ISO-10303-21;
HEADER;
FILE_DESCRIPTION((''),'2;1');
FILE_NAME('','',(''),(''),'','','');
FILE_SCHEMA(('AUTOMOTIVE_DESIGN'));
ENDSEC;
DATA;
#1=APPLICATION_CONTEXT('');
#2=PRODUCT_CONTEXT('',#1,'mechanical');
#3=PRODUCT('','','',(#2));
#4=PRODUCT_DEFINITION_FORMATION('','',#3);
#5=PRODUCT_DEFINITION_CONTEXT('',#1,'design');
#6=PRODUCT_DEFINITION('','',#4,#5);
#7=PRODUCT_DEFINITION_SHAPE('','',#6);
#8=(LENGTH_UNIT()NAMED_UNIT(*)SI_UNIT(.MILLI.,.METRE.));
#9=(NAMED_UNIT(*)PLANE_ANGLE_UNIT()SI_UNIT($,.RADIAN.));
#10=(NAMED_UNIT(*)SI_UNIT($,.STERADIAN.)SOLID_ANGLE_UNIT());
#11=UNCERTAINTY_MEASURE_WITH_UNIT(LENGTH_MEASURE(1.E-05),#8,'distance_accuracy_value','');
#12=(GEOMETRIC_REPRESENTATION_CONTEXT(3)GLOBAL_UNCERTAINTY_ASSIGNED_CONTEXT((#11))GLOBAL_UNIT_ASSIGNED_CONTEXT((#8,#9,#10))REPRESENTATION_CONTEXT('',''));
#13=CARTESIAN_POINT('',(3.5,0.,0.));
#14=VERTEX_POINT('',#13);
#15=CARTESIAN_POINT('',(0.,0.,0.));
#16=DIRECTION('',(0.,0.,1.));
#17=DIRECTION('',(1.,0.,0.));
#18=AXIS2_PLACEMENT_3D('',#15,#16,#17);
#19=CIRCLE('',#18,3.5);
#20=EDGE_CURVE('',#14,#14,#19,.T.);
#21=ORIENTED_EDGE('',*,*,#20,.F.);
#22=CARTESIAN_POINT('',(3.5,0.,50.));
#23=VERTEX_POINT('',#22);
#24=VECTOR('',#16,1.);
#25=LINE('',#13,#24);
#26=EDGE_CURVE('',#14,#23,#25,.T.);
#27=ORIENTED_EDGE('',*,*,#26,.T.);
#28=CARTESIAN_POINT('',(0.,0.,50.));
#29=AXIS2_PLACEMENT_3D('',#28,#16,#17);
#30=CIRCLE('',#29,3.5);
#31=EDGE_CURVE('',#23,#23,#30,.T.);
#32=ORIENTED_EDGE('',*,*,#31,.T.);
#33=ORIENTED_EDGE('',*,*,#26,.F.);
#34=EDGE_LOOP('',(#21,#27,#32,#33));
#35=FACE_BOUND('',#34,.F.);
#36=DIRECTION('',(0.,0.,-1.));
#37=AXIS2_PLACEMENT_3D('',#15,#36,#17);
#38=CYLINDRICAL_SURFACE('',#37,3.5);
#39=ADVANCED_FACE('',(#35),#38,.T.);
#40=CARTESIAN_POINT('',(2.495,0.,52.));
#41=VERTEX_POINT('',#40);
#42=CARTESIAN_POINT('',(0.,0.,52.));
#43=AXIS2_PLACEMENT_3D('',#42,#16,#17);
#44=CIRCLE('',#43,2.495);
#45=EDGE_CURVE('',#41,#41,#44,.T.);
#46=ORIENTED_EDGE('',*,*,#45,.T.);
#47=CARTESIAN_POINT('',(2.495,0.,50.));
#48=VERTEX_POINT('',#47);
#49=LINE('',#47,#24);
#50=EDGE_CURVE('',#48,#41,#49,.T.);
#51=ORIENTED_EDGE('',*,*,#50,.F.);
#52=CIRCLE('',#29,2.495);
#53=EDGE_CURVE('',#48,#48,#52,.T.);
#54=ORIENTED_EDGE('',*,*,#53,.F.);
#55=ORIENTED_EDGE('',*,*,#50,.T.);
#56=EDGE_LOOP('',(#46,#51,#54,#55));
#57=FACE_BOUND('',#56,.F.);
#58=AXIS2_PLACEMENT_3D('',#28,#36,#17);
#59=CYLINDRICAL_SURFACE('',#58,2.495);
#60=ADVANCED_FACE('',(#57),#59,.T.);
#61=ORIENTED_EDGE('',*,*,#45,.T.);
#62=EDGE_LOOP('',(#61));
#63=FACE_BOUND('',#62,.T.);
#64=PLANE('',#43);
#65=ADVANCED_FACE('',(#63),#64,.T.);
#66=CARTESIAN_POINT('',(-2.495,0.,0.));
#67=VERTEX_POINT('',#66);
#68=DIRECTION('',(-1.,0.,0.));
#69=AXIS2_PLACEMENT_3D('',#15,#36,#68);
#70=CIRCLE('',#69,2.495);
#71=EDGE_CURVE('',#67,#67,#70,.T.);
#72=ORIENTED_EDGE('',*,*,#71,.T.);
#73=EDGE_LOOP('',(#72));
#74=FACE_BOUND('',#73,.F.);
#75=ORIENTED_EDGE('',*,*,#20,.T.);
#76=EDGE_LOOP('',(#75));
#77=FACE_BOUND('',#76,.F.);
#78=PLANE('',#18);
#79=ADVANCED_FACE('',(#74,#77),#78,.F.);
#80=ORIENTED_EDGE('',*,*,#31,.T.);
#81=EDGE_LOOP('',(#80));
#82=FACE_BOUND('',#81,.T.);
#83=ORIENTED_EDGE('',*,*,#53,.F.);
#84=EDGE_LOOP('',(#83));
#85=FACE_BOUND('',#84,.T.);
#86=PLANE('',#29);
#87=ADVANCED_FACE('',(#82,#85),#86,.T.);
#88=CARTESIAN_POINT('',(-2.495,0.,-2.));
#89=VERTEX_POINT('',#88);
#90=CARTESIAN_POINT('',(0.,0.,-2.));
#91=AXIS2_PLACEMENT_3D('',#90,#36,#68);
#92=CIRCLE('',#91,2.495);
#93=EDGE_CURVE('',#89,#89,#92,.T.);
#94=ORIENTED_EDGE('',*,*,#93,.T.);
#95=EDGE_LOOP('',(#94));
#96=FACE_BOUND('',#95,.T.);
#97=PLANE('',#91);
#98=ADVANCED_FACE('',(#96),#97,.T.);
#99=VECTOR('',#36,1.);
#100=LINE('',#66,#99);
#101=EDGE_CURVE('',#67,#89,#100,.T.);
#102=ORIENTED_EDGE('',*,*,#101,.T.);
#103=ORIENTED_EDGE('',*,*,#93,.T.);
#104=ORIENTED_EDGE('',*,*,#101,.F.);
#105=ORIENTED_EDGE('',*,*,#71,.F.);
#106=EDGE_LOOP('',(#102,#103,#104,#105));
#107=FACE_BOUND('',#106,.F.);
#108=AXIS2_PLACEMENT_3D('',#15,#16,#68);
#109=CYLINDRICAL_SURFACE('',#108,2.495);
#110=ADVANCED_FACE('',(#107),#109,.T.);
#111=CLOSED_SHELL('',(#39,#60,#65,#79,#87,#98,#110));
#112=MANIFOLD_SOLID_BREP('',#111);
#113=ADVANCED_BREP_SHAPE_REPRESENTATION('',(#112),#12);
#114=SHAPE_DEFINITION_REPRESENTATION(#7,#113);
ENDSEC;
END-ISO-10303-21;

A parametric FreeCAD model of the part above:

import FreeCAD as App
import Part
import Sketcher
from FreeCAD import Vector
Q = App.Units.Quantity

doc = App.newDocument("Part")
body = doc.addObject("PartDesign::Body", "Body")

sketch1 = doc.addObject("Sketcher::SketchObject", "Sketch")
body.addObject(sketch1)
sketch1.AttachmentSupport = (doc.XY_Plane, [""])
sketch1.MapMode = "FlatFace"
sketch1.addGeometry(Part.Circle(Vector(0, 0, 0), Vector(0, 0, 1), 3.5), False)
sketch1.addConstraint([
    Sketcher.Constraint("Coincident", 0, 3, -1, 1),
    Sketcher.Constraint("Diameter", 0, Q("7 mm")),
])
pad1 = doc.addObject("PartDesign::Pad", "Pad")
body.addObject(pad1)
pad1.Profile = sketch1
pad1.Length = 50

sketch2 = doc.addObject("Sketcher::SketchObject", "Sketch001")
body.addObject(sketch2)
sketch2.AttachmentSupport = (doc.XY_Plane, [""])
sketch2.MapMode = "FlatFace"
sketch2.AttachmentOffset = App.Placement(Vector(0, 0, 50), App.Rotation())
sketch2.addGeometry(Part.Circle(Vector(0, 0, 0), Vector(0, 0, 1), 2.495), False)
sketch2.addConstraint([
    Sketcher.Constraint("Coincident", 0, 3, -1, 1),
    Sketcher.Constraint("Diameter", 0, Q("4.99 mm")),
])
pad2 = doc.addObject("PartDesign::Pad", "Pad001")
body.addObject(pad2)
pad2.Profile = sketch2
pad2.Length = 2

sketch3 = doc.addObject("Sketcher::SketchObject", "Sketch002")
body.addObject(sketch3)
sketch3.AttachmentSupport = (doc.XY_Plane, [""])
sketch3.MapMode = "FlatFace"
sketch3.addGeometry(Part.Circle(Vector(0, 0, 0), Vector(0, 0, 1), 2.495), False)
sketch3.addConstraint([
    Sketcher.Constraint("Coincident", 0, 3, -1, 1),
    Sketcher.Constraint("Diameter", 0, Q("4.99 mm")),
])
pad3 = doc.addObject("PartDesign::Pad", "Pad002")
body.addObject(pad3)
pad3.Profile = sketch3
pad3.Length = 2
pad3.Reversed = True

doc.recompute()
